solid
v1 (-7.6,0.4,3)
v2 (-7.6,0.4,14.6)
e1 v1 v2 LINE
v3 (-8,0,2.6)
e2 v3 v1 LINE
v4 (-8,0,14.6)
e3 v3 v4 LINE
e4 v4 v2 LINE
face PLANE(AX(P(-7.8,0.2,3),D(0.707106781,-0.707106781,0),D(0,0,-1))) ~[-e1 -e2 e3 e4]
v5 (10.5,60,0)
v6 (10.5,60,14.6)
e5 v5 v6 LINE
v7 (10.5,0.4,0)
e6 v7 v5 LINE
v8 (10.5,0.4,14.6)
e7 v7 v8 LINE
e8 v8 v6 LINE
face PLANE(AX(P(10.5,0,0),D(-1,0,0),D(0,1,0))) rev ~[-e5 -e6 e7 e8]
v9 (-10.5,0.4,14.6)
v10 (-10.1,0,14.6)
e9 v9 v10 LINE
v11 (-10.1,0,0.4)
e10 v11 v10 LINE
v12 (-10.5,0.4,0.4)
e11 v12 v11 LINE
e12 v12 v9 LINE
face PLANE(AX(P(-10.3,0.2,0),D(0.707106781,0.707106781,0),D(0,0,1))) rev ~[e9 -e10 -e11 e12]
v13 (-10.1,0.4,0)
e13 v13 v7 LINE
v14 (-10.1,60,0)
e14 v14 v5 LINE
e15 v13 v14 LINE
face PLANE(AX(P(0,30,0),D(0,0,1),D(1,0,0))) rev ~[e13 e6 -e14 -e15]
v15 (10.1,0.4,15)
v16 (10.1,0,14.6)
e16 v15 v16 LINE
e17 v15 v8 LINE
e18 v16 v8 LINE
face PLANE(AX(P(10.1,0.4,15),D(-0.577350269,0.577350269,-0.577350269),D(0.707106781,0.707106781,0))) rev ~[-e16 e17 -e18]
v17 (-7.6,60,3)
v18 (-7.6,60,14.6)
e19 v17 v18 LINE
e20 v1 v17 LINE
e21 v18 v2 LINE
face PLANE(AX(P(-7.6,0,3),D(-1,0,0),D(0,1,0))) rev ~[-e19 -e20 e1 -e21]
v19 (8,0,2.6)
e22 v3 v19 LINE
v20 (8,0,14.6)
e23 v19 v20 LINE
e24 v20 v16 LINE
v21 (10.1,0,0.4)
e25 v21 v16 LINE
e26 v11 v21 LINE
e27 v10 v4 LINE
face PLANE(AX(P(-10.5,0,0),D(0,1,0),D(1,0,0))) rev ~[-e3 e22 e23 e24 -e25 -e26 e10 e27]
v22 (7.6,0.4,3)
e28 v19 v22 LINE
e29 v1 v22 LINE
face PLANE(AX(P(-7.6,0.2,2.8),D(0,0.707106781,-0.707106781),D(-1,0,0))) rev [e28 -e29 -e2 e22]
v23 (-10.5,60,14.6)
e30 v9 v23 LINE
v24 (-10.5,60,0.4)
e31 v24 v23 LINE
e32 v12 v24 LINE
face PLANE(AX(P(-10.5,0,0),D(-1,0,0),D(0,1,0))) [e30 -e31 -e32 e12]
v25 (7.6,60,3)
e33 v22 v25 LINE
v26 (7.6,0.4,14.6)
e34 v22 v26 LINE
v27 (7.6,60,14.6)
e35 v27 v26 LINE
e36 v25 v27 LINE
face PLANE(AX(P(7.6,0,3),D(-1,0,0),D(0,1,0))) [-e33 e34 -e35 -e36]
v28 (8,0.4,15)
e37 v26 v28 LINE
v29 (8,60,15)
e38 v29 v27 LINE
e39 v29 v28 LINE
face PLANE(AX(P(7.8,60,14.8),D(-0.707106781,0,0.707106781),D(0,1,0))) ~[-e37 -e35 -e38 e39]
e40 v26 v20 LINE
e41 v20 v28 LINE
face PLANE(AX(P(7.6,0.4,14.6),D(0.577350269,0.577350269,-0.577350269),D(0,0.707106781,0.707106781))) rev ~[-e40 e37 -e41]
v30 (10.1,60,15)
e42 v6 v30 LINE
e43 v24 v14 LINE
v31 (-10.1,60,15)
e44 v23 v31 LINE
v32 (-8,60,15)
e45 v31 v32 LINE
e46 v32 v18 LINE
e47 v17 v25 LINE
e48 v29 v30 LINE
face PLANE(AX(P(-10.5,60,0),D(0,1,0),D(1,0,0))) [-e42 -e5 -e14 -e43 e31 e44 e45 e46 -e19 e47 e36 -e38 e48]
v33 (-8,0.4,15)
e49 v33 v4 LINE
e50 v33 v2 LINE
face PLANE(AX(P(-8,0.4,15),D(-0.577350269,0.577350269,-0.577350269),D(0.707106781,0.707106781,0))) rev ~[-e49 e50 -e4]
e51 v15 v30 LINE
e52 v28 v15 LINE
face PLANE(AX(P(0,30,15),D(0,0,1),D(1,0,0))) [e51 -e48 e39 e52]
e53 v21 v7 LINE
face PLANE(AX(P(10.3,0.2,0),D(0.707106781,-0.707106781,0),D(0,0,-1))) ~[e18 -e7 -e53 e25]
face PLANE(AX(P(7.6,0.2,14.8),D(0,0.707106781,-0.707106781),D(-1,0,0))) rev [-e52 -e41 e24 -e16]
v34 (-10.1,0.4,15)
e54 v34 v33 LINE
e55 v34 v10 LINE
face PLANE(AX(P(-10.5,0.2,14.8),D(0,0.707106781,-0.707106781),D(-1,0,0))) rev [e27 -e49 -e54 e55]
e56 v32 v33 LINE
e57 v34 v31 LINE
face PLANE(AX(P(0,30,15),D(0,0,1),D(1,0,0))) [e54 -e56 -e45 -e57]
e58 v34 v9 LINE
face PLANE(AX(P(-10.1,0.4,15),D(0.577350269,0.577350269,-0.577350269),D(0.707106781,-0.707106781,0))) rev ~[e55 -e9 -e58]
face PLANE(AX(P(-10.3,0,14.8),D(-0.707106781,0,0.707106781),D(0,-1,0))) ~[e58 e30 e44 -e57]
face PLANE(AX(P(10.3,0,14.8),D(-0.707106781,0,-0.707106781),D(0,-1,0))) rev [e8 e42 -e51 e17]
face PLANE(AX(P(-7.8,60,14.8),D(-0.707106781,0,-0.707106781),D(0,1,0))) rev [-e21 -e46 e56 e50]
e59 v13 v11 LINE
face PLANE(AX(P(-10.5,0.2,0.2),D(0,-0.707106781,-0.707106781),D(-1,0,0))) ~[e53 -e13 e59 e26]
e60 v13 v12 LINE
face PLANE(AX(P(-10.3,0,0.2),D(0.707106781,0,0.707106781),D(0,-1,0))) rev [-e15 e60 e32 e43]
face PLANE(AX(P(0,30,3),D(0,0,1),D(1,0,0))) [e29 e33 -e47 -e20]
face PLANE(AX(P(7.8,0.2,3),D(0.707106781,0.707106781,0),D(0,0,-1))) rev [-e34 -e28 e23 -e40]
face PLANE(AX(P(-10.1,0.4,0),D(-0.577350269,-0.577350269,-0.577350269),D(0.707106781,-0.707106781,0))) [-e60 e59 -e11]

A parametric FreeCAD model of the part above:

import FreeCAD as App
import Part
import Sketcher

V = App.Vector


def edges_at(feature, points):
    """Names of the edges that pass closest to the given points."""
    edges = feature.Shape.Edges
    near = lambda p: min(range(len(edges)), key=lambda i: edges[i].distToShape(Part.Vertex(*p))[0])
    return sorted({f"Edge{near(p) + 1}" for p in points})

doc = App.newDocument("Part")
body = doc.addObject("PartDesign::Body", "Body")

sketch1 = body.newObject("Sketcher::SketchObject", "Sketch")
sketch1.AttachmentSupport = (doc.getObject("XY_Plane"), [""])
sketch1.MapMode = "FlatFace"
sketch1.AttachmentOffset = App.Placement(V(0, 0, 3), App.Rotation())
sketch1.addGeometry(Part.LineSegment(V(-8, 60, 0), V(-8, 0, 0)), False)
sketch1.addGeometry(Part.LineSegment(V(-8, 0, 0), V(8, 0, 0)), False)
sketch1.addGeometry(Part.LineSegment(V(8, 0, 0), V(8, 60, 0)), False)
sketch1.addGeometry(Part.LineSegment(V(8, 60, 0), V(-8, 60, 0)), False)
sketch1.addConstraint(Sketcher.Constraint("Coincident", 0, 2, 1, 1))
sketch1.addConstraint(Sketcher.Constraint("Coincident", 1, 2, 2, 1))
sketch1.addConstraint(Sketcher.Constraint("Coincident", 2, 2, 3, 1))
sketch1.addConstraint(Sketcher.Constraint("Coincident", 3, 2, 0, 1))
sketch1.addConstraint(Sketcher.Constraint("Vertical", 0))
sketch1.addConstraint(Sketcher.Constraint("Horizontal", 1))
sketch1.addConstraint(Sketcher.Constraint("Vertical", 2))
sketch1.addConstraint(Sketcher.Constraint("Horizontal", 3))
sketch1.addConstraint(Sketcher.Constraint("Symmetric", 0, 2, 1, 2, -1, 1))
sketch1.addConstraint(Sketcher.Constraint("DistanceY", 0, 2, 0, 1, 60.0))
sketch1.addConstraint(Sketcher.Constraint("DistanceX", 1, 1, 1, 2, 15.2))
pad1 = body.newObject("PartDesign::Pad", "Pad")
pad1.Profile = sketch1
pad1.Length = 15
body2 = doc.addObject("PartDesign::Body", "Body001")

sketch2 = body2.newObject("Sketcher::SketchObject", "Sketch001")
sketch2.AttachmentSupport = (doc.getObject("XY_Plane001"), [""])
sketch2.MapMode = "FlatFace"
sketch2.addGeometry(Part.LineSegment(V(-10, 60, 0), V(-10, 0, 0)), False)
sketch2.addGeometry(Part.LineSegment(V(-10, 0, 0), V(10, 0, 0)), False)
sketch2.addGeometry(Part.LineSegment(V(10, 0, 0), V(10, 60, 0)), False)
sketch2.addGeometry(Part.LineSegment(V(10, 60, 0), V(-10, 60, 0)), False)
sketch2.addConstraint(Sketcher.Constraint("Coincident", 0, 2, 1, 1))
sketch2.addConstraint(Sketcher.Constraint("Coincident", 1, 2, 2, 1))
sketch2.addConstraint(Sketcher.Constraint("Coincident", 2, 2, 3, 1))
sketch2.addConstraint(Sketcher.Constraint("Coincident", 3, 2, 0, 1))
sketch2.addConstraint(Sketcher.Constraint("Vertical", 0))
sketch2.addConstraint(Sketcher.Constraint("Horizontal", 1))
sketch2.addConstraint(Sketcher.Constraint("Vertical", 2))
sketch2.addConstraint(Sketcher.Constraint("Horizontal", 3))
sketch2.addConstraint(Sketcher.Constraint("Symmetric", 0, 2, 1, 2, -1, 1))
sketch2.addConstraint(Sketcher.Constraint("DistanceX", 1, 1, 1, 2, 21.0))
sketch2.addConstraint(Sketcher.Constraint("DistanceY", 0, 2, 0, 1, 60.0))
pad2 = body2.newObject("PartDesign::Pad", "Pad001")
pad2.Profile = sketch2
pad2.Length = 15
doc.recompute()

boolean = body2.newObject("PartDesign::Boolean", "Boolean")
boolean.Type = "Cut"
boolean.addObjects([body])
doc.recompute()

chamfer = body2.newObject("PartDesign::Chamfer", "Chamfer")
chamfer.Base = (boolean, edges_at(boolean, [
    (-10.5, 0, 7.5),
    (-10.5, 30, 15),
    (-10.5, 30, 0),
    (10.5, 0, 7.5),
    (9.05, 0, 15),
    (7.6, 0, 9),
    (0, 0, 3),
    (-7.6, 0, 9),
    (-9.05, 0, 15),
    (0, 0, 0),
    (-7.6, 30, 15),
    (10.5, 30, 15),
    (7.6, 30, 15),
]))
chamfer.Size = 0.4

doc.recompute()
